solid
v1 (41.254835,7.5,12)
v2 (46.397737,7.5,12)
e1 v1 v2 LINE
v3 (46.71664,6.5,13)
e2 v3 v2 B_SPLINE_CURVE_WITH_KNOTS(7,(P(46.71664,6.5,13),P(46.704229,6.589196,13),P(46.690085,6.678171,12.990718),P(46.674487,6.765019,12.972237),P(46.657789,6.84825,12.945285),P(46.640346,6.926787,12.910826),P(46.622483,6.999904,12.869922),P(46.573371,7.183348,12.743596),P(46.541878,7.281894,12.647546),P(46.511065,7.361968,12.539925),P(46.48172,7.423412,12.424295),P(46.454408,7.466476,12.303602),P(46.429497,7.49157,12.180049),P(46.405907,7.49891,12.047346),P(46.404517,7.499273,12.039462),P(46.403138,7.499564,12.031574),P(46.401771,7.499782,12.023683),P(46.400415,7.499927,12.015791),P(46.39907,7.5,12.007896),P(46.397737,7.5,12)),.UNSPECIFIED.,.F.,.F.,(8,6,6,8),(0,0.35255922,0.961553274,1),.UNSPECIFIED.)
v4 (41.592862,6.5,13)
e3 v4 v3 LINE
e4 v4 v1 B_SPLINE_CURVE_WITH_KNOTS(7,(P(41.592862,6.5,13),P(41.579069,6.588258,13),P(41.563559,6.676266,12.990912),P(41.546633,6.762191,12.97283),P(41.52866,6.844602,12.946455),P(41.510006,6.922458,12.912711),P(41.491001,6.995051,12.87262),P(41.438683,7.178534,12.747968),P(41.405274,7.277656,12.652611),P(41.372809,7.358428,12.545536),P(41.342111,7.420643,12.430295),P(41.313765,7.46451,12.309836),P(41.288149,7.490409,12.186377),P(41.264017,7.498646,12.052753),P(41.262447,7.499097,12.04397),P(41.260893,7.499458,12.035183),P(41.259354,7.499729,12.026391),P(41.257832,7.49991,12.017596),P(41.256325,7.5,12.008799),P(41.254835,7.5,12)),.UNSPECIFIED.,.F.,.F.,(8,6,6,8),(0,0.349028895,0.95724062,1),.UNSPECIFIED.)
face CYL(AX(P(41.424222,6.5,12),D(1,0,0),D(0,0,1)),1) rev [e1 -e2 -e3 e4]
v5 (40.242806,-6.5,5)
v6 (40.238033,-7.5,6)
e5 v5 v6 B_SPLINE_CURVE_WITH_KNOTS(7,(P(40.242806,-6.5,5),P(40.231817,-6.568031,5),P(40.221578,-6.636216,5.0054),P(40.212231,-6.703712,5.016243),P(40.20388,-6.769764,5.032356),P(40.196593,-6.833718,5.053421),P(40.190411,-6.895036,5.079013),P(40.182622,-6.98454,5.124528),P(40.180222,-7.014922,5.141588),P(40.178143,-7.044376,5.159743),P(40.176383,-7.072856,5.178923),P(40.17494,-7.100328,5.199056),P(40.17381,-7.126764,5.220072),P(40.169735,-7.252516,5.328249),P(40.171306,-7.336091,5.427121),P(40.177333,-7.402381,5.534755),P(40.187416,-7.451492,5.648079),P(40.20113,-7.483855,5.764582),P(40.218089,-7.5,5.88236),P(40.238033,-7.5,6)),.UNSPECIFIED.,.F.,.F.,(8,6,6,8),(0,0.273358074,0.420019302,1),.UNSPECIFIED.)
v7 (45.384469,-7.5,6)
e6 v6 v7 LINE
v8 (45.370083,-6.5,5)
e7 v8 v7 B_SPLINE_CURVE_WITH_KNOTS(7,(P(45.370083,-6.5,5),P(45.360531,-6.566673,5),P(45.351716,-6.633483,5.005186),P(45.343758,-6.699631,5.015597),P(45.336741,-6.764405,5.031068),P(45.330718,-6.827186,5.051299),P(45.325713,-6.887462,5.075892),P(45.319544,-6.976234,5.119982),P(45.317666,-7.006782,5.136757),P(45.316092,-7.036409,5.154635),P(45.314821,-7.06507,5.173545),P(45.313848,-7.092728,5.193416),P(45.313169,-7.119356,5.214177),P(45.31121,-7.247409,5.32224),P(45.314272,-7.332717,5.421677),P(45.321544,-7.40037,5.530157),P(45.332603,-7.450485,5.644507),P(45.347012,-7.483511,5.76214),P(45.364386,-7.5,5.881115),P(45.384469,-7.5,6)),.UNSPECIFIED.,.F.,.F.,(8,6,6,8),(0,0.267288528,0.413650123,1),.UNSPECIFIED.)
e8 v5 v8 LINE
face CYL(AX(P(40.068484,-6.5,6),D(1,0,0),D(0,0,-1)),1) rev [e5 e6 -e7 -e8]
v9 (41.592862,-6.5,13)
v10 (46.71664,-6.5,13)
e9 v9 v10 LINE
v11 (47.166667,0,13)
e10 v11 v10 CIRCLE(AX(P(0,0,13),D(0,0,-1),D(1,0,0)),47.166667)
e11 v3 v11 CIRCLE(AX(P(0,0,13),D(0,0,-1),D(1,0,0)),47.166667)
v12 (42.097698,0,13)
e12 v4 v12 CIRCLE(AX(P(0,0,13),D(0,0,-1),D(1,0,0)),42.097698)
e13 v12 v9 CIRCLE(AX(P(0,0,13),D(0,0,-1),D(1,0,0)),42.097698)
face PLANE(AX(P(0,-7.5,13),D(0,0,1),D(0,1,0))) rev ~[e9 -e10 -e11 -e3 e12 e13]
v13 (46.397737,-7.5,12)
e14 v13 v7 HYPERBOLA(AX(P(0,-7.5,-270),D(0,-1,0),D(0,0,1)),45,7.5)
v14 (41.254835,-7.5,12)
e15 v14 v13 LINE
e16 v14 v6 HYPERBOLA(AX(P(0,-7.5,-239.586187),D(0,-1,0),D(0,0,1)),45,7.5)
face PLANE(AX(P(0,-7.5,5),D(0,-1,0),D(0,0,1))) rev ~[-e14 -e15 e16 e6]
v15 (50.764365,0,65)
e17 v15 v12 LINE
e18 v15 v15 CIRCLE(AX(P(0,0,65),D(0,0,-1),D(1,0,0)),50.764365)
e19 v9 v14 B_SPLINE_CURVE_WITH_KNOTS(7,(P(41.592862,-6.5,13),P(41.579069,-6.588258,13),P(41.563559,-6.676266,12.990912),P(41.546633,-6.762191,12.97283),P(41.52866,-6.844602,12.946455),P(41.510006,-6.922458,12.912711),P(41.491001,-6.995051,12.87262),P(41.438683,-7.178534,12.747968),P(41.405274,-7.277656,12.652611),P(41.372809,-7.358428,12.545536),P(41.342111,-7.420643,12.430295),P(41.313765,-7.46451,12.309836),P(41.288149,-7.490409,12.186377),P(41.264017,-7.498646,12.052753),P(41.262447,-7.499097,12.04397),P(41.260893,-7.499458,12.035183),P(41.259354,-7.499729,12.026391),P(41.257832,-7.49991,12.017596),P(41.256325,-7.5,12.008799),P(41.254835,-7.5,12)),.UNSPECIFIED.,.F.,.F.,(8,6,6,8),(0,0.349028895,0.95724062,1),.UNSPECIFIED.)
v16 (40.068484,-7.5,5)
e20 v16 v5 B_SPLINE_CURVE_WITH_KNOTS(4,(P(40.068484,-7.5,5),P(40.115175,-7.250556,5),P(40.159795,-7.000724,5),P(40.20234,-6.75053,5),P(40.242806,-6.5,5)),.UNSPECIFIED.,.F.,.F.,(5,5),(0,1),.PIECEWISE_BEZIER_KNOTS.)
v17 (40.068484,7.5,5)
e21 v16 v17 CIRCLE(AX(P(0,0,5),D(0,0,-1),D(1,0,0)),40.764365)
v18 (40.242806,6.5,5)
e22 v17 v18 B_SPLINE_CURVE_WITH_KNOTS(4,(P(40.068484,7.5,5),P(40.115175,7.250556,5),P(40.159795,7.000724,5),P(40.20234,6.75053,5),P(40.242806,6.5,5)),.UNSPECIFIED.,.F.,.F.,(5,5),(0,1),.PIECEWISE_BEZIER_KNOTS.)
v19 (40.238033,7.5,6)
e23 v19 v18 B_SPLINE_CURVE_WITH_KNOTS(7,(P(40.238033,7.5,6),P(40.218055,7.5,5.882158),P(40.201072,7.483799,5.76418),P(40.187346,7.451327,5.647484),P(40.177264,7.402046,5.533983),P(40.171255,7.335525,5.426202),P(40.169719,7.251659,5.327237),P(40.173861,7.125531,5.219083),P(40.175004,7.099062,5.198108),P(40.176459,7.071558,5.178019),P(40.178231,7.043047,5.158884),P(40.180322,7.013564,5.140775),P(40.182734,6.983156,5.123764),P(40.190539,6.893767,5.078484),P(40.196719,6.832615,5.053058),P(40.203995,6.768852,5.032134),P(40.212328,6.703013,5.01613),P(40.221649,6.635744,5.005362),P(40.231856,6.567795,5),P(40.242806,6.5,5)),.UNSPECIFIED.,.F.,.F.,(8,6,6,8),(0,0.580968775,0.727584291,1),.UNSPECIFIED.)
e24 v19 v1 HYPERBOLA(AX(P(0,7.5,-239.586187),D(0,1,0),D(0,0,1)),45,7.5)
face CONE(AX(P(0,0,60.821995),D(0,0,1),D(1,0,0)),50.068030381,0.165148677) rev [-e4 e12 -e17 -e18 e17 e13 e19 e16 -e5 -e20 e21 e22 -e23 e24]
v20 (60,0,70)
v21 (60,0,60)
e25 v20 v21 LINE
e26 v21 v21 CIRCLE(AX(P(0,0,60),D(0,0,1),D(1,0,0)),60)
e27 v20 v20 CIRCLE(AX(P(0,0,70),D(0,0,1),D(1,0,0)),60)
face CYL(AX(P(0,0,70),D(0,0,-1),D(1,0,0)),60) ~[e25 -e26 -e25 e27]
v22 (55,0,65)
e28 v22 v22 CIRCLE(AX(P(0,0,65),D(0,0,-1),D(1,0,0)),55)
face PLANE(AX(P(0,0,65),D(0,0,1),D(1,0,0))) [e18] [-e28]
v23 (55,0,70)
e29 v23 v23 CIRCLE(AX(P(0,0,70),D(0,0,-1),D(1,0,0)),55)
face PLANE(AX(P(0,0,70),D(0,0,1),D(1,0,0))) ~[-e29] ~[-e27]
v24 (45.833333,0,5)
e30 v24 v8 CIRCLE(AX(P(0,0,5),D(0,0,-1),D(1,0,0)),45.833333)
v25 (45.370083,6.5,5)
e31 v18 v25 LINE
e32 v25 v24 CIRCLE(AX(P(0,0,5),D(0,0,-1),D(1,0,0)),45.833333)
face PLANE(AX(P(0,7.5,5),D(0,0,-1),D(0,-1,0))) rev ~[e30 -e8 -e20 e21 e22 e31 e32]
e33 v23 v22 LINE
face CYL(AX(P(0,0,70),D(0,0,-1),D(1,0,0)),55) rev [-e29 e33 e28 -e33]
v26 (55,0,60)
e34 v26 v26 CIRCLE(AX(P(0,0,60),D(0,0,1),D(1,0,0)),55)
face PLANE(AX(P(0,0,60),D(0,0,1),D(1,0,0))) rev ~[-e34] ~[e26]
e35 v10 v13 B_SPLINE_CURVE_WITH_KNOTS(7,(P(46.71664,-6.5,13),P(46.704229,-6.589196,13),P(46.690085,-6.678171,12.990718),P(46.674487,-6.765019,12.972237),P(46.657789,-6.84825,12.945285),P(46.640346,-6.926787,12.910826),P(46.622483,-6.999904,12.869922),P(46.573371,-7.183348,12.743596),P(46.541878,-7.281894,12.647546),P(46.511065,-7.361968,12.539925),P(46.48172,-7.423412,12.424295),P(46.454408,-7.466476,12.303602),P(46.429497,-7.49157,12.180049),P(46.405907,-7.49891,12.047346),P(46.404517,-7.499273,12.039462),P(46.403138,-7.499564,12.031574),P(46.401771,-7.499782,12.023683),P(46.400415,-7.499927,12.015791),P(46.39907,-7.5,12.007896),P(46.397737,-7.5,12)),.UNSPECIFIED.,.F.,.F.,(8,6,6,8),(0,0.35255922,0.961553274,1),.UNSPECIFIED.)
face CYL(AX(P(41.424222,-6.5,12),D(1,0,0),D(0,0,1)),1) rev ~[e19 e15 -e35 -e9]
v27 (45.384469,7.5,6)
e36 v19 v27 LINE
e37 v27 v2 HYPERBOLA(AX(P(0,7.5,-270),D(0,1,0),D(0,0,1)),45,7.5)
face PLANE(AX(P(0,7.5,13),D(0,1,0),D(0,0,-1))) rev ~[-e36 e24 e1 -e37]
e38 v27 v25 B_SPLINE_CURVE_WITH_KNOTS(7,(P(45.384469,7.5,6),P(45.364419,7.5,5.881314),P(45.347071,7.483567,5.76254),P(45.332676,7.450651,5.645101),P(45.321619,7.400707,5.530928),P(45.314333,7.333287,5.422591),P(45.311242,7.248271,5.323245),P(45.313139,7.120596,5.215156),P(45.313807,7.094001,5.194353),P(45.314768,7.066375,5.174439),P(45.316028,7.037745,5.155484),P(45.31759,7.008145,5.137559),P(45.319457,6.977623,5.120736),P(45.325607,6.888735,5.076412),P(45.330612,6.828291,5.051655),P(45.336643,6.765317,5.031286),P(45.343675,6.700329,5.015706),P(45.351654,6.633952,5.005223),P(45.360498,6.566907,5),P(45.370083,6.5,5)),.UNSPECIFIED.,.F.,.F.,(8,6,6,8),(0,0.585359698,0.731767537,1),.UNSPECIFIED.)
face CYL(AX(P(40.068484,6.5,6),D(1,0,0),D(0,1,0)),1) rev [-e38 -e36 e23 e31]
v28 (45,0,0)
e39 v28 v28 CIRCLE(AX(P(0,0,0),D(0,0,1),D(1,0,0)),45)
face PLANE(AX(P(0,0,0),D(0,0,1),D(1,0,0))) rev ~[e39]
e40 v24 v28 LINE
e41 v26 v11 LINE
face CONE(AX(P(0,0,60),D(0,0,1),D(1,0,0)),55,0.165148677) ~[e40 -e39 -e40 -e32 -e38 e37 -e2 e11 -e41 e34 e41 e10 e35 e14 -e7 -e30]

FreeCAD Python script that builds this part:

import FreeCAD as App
import Part
import Sketcher

V = App.Vector


def edges_at(feature, points):
    """Names of the edges that pass closest to the given points."""
    edges = feature.Shape.Edges
    near = lambda p: min(range(len(edges)), key=lambda i: edges[i].distToShape(Part.Vertex(*p))[0])
    return sorted({f"Edge{near(p) + 1}" for p in points})


def faces_at(feature, points):
    """Names of the faces that lie closest to the given points."""
    faces = feature.Shape.Faces
    near = lambda p: min(range(len(faces)), key=lambda i: faces[i].distToShape(Part.Vertex(*p))[0])
    return sorted({f"Face{near(p) + 1}" for p in points})

doc = App.newDocument("Part")
body = doc.addObject("PartDesign::Body", "Body")

sketch1 = body.newObject("Sketcher::SketchObject", "Sketch")
sketch1.AttachmentSupport = (doc.getObject("XZ_Plane"), [""])
sketch1.MapMode = "FlatFace"
sketch1.addGeometry([
    Part.LineSegment(V(45, 0, 0), V(0, 0, 0)),
    Part.LineSegment(V(0, 0, 0), V(0, 70, 0)),
    Part.LineSegment(V(0, 70, 0), V(60, 70, 0)),
    Part.LineSegment(V(60, 70, 0), V(60, 60, 0)),
    Part.LineSegment(V(60, 60, 0), V(55, 60, 0)),
    Part.LineSegment(V(55, 60, 0), V(45, 0, 0)),
], False)
sketch1.addConstraint([
    Sketcher.Constraint("Coincident", 0, 2, 1, 1),
    Sketcher.Constraint("Coincident", 1, 2, 2, 1),
    Sketcher.Constraint("Coincident", 2, 2, 3, 1),
    Sketcher.Constraint("Coincident", 3, 2, 4, 1),
    Sketcher.Constraint("Coincident", 4, 2, 5, 1),
    Sketcher.Constraint("Coincident", 5, 2, 0, 1),
    Sketcher.Constraint("Horizontal", 0),
    Sketcher.Constraint("Vertical", 1),
    Sketcher.Constraint("Horizontal", 2),
    Sketcher.Constraint("Vertical", 3),
    Sketcher.Constraint("Horizontal", 4),
    Sketcher.Constraint("Coincident", 0, 2, -1, 1),
    Sketcher.Constraint("DistanceX", 0, 2, 0, 1, 45.0),
    Sketcher.Constraint("DistanceX", 2, 1, 2, 2, 60.0),
    Sketcher.Constraint("DistanceX", 4, 2, 4, 1, 5.0),
    Sketcher.Constraint("DistanceY", 1, 1, 1, 2, 70.0),
    Sketcher.Constraint("DistanceY", 3, 2, 3, 1, 10.0),
])
revolution = body.newObject("PartDesign::Revolution", "Revolution")
revolution.Profile = sketch1
revolution.ReferenceAxis = (sketch1, ["V_Axis"])
revolution.Angle = 360
doc.recompute()

thickness = body.newObject("PartDesign::Thickness", "Thickness")
thickness.Base = (revolution, faces_at(revolution, [(28.282, -12.148, 70)]))
thickness.Value = 5
thickness.Reversed = True
thickness.Join = "Intersection"

sketch2 = body.newObject("Sketcher::SketchObject", "Sketch001")
sketch2.AttachmentSupport = (doc.getObject("YZ_Plane"), [""])
sketch2.MapMode = "FlatFace"
sketch2.addGeometry([
    Part.LineSegment(V(8, 13, 0), V(-8, 13, 0)),
    Part.LineSegment(V(-8, 13, 0), V(-8, 5, 0)),
    Part.LineSegment(V(-8, 5, 0), V(8, 5, 0)),
    Part.LineSegment(V(8, 5, 0), V(8, 13, 0)),
], False)
sketch2.addConstraint([
    Sketcher.Constraint("Coincident", 0, 2, 1, 1),
    Sketcher.Constraint("Coincident", 1, 2, 2, 1),
    Sketcher.Constraint("Coincident", 2, 2, 3, 1),
    Sketcher.Constraint("Coincident", 3, 2, 0, 1),
    Sketcher.Constraint("Horizontal", 0),
    Sketcher.Constraint("Vertical", 1),
    Sketcher.Constraint("Horizontal", 2),
    Sketcher.Constraint("Vertical", 3),
    Sketcher.Constraint("DistanceX", 0, 2, 0, 1, 15.0),
    Sketcher.Constraint("DistanceY", 1, 2, 1, 1, 8.0),
    Sketcher.Constraint("DistanceY", -1, 1, 1, 2, 5.0),
    Sketcher.Constraint("DistanceX", 0, 2, -1, 1, 7.5),
])
pocket1 = body.newObject("PartDesign::Pocket", "Pocket")
pocket1.Profile = sketch2
pocket1.Type = "ThroughAll"
pocket1.Reversed = True
doc.recompute()

fillet = body.newObject("PartDesign::Fillet", "Fillet")
fillet.Base = (pocket1, edges_at(pocket1, [
    (42.642, 7.5, 5),
    (43.995, 7.5, 13),
    (42.642, -7.5, 5),
    (43.995, -7.5, 13),
]))
fillet.Radius = 1

doc.recompute()
